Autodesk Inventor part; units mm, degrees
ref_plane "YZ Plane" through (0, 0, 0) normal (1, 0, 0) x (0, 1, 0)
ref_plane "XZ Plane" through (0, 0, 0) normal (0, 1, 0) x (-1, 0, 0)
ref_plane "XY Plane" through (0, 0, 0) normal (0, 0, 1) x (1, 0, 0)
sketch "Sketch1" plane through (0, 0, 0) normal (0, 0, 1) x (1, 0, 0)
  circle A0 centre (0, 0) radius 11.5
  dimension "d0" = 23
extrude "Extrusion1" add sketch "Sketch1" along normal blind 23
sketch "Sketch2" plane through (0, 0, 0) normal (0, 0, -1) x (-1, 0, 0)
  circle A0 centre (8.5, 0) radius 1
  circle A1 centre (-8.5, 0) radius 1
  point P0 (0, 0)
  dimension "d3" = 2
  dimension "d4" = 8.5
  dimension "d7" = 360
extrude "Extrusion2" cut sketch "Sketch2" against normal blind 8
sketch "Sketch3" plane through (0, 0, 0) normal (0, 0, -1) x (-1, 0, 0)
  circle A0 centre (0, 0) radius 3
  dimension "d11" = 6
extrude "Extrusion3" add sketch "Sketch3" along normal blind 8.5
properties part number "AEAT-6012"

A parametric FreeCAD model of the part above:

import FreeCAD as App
import Part
import Sketcher
from FreeCAD import Vector
Q = App.Units.Quantity

doc = App.newDocument("Part")
body = doc.addObject("PartDesign::Body", "Body")

sketch1 = body.newObject("Sketcher::SketchObject", "Sketch")
sketch1.AttachmentSupport = (doc.getObject("XY_Plane"), [""])
sketch1.MapMode = "FlatFace"
sketch1.addGeometry(Part.Circle(Vector(0, 0, 0), Vector(0, 0, 1), 12), False)
sketch1.addConstraint([
    Sketcher.Constraint("Coincident", 0, 3, -1, 1),
    Sketcher.Constraint("Diameter", 0, Q("23 mm")),
])
pad1 = body.newObject("PartDesign::Pad", "Pad")
pad1.Profile = sketch1
pad1.Length = 23

sketch2 = body.newObject("Sketcher::SketchObject", "Sketch001")
sketch2.AttachmentSupport = (doc.getObject("XY_Plane"), [""])
sketch2.MapMode = "FlatFace"
sketch2.addGeometry([
    Part.Circle(Vector(-8.5, 0, 0), Vector(0, 0, 1), 1),
    Part.Circle(Vector(8.5, 0, 0), Vector(0, 0, 1), 1),
], False)
sketch2.addConstraint([
    Sketcher.Constraint("Equal", 0, 1),
    Sketcher.Constraint("Symmetric", 0, 3, 1, 3, -1, 1),
    Sketcher.Constraint("PointOnObject", 0, 3, -1),
    Sketcher.Constraint("Diameter", 0, Q("2 mm")),
    Sketcher.Constraint("DistanceX", 0, 3, -1, 1, Q("8.5 mm")),
])
pocket1 = body.newObject("PartDesign::Pocket", "Pocket")
pocket1.Profile = sketch2
pocket1.Length = 8
pocket1.Reversed = True

sketch3 = body.newObject("Sketcher::SketchObject", "Sketch002")
sketch3.AttachmentSupport = (doc.getObject("XY_Plane"), [""])
sketch3.MapMode = "FlatFace"
sketch3.addGeometry(Part.Circle(Vector(0, 0, 0), Vector(0, 0, 1), 3), False)
sketch3.addConstraint([
    Sketcher.Constraint("Coincident", 0, 3, -1, 1),
    Sketcher.Constraint("Diameter", 0, Q("6 mm")),
])
pad2 = body.newObject("PartDesign::Pad", "Pad001")
pad2.Profile = sketch3
pad2.Length = 8.5
pad2.Reversed = True

doc.recompute()
